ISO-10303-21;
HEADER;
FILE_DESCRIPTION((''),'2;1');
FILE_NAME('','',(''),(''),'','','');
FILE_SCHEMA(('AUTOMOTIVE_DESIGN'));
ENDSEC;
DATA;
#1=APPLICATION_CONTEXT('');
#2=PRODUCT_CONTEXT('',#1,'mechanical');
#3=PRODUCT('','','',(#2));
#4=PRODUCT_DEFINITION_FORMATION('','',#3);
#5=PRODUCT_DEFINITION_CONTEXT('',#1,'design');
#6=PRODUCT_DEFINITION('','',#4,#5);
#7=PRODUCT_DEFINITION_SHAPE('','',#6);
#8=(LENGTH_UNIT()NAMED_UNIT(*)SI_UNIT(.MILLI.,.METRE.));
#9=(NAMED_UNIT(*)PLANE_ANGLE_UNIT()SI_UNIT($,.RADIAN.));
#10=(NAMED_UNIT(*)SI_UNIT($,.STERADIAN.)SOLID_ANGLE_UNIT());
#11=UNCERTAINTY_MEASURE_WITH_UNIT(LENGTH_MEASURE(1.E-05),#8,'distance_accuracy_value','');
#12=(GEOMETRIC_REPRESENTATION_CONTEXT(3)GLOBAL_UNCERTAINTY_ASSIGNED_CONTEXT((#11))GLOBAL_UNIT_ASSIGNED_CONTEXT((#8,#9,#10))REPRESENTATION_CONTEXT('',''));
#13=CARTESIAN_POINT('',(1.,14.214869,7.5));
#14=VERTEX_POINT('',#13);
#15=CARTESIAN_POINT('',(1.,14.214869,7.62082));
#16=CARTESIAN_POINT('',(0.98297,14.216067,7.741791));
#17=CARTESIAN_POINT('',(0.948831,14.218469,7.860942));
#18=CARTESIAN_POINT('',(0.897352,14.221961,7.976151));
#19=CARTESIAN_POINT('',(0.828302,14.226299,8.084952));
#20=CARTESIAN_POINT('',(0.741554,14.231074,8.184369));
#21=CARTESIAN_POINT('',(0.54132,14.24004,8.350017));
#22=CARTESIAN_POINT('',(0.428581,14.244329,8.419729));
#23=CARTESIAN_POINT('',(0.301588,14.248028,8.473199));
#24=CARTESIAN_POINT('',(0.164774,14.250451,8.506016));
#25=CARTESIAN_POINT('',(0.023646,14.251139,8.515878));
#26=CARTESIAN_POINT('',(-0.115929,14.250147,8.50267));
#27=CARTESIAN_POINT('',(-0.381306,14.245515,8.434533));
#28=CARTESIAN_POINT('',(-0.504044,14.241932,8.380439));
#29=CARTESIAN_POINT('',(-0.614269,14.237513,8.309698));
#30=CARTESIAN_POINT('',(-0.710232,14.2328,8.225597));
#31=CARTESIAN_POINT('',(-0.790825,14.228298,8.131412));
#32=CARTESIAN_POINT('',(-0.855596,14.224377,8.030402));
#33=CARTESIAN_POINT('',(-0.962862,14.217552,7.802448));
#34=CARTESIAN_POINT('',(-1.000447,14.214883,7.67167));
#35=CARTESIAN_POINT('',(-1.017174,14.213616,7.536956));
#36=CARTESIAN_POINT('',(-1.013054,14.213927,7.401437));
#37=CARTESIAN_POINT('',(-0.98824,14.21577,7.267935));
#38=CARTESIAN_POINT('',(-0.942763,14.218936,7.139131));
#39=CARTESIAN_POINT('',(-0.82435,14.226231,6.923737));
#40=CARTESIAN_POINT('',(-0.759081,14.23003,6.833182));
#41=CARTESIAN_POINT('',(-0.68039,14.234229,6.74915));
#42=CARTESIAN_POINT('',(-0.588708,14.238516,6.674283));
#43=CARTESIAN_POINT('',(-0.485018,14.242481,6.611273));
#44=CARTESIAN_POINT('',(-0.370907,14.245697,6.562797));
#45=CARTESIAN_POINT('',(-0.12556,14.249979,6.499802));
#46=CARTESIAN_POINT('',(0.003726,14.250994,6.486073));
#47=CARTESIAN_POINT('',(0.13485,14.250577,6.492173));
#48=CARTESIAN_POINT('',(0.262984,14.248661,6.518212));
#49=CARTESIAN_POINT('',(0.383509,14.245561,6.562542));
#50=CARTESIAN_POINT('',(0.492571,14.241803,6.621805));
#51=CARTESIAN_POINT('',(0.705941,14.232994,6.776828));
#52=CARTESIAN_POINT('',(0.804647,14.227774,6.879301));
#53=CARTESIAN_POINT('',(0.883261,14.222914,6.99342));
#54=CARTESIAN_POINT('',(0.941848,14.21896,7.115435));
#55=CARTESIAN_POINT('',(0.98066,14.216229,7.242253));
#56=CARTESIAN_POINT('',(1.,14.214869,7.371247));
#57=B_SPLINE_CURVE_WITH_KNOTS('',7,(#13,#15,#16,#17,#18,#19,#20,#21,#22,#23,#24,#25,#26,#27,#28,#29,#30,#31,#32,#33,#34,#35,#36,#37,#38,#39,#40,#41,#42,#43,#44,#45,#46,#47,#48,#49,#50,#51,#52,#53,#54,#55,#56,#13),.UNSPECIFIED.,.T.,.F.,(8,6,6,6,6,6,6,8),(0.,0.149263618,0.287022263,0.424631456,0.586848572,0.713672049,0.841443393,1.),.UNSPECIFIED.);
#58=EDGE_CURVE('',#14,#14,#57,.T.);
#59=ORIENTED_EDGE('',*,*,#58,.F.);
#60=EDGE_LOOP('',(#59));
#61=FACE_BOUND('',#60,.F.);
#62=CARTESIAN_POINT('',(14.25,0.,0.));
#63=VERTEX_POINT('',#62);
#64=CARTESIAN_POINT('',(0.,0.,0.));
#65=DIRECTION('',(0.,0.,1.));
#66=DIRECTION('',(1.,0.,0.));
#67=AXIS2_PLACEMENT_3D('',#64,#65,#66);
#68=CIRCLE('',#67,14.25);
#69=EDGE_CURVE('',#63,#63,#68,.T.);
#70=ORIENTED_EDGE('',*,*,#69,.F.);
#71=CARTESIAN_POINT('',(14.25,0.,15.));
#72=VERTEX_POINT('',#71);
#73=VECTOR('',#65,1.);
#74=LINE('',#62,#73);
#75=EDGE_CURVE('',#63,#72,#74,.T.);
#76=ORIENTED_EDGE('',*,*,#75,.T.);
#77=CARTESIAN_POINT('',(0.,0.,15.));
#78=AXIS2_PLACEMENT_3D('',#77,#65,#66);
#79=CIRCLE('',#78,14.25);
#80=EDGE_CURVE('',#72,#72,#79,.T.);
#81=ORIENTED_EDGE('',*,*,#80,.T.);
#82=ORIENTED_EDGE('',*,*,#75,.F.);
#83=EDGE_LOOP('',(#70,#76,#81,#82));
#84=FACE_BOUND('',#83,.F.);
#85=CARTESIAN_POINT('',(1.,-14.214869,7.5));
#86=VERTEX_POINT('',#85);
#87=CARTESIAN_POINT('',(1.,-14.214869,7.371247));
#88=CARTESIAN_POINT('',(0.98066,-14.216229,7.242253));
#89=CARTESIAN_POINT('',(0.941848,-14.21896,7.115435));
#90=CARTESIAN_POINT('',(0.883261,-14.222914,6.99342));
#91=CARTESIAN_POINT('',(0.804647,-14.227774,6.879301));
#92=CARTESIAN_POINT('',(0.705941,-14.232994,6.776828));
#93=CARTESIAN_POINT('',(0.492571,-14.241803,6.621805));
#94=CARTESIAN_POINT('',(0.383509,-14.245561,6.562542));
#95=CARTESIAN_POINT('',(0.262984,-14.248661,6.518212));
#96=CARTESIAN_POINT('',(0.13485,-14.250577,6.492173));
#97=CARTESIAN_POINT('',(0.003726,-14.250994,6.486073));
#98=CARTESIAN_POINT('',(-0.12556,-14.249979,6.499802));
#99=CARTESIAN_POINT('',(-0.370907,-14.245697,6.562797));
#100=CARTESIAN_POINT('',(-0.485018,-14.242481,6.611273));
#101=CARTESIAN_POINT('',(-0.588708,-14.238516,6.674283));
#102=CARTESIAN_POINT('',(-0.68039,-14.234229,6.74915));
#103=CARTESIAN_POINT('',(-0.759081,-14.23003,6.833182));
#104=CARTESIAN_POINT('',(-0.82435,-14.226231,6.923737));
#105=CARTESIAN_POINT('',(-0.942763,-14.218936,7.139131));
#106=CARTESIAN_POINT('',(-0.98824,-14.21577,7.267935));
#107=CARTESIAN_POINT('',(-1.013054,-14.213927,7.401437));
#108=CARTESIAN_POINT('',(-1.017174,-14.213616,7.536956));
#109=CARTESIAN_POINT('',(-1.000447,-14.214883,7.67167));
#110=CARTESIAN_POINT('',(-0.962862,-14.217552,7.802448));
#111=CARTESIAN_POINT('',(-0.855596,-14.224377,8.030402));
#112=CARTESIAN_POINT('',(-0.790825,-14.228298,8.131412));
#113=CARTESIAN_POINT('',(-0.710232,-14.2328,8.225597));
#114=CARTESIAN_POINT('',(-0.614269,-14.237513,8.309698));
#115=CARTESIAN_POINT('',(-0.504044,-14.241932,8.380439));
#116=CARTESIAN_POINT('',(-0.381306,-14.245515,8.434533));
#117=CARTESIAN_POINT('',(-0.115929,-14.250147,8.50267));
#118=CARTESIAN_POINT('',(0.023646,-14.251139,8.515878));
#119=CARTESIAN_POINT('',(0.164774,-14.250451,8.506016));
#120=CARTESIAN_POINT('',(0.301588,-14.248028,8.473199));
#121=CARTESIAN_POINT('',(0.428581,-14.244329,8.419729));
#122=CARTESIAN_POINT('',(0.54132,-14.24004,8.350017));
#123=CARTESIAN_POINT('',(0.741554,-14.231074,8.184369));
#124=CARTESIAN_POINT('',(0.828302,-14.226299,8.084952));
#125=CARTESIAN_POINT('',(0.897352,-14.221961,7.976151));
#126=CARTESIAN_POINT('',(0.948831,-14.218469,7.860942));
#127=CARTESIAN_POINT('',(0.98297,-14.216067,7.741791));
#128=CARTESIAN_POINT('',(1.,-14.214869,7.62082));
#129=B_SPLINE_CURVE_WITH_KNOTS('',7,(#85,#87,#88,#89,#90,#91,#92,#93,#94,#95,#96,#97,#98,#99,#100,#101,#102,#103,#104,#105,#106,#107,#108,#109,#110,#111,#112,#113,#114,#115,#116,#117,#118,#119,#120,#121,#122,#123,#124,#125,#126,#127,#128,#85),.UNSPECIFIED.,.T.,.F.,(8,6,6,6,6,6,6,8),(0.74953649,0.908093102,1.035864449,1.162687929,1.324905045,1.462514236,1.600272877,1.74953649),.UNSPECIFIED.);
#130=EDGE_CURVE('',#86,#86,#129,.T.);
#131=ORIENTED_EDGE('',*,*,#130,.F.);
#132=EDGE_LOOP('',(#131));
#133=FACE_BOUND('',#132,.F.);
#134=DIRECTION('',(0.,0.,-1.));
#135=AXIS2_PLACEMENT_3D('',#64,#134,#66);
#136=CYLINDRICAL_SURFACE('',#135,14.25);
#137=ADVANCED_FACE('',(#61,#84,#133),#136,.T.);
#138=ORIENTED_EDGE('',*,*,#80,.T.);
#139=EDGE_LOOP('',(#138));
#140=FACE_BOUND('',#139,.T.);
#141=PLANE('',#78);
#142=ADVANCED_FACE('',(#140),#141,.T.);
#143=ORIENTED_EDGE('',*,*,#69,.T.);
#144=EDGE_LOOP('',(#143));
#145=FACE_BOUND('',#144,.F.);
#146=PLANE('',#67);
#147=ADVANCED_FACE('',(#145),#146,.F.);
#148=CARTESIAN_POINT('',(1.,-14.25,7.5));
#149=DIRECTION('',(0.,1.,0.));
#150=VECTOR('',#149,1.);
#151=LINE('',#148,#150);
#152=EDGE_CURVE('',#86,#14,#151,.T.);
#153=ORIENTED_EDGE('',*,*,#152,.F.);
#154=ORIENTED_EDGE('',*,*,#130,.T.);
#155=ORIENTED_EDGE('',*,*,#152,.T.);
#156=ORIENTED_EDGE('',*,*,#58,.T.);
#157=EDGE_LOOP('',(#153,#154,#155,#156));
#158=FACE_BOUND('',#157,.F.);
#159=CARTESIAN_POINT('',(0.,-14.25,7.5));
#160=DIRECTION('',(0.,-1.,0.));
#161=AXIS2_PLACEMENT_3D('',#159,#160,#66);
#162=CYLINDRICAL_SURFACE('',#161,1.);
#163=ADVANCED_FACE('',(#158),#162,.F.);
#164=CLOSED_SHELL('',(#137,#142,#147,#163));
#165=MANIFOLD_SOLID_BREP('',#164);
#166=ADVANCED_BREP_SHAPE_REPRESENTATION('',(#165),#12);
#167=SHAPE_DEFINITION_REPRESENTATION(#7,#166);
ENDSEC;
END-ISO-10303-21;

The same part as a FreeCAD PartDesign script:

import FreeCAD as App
import Part
import Sketcher
from FreeCAD import Vector
Q = App.Units.Quantity

doc = App.newDocument("Part")
body = doc.addObject("PartDesign::Body", "Body")

sketch1 = doc.addObject("Sketcher::SketchObject", "Sketch")
body.addObject(sketch1)
sketch1.AttachmentSupport = (doc.XY_Plane, [""])
sketch1.MapMode = "FlatFace"
sketch1.addGeometry(Part.Circle(Vector(0, 0, 0), Vector(0, 0, 1), 14.25), False)
sketch1.addConstraint([
    Sketcher.Constraint("Coincident", 0, 3, -1, 1),
    Sketcher.Constraint("Diameter", 0, Q("28.5 mm")),
])
pad1 = doc.addObject("PartDesign::Pad", "Pad")
body.addObject(pad1)
pad1.Profile = sketch1
pad1.Length = 15

sketch2 = doc.addObject("Sketcher::SketchObject", "Sketch001")
body.addObject(sketch2)
sketch2.AttachmentSupport = (doc.XZ_Plane, [""])
sketch2.MapMode = "FlatFace"
sketch2.AttachmentOffset = App.Placement(Vector(0, 0, 14.25), App.Rotation())
sketch2.addGeometry(Part.Circle(Vector(0, 7.5, 0), Vector(0, 0, 1), 1), False)
sketch2.addConstraint([
    Sketcher.Constraint("PointOnObject", 0, 3, -2),
    Sketcher.Constraint("Diameter", 0, Q("2 mm")),
    Sketcher.Constraint("DistanceY", -1, 1, 0, 3, Q("7.5 mm")),
])
pocket1 = doc.addObject("PartDesign::Pocket", "Pocket")
body.addObject(pocket1)
pocket1.Profile = sketch2
pocket1.Length = 28.5

doc.recompute()
